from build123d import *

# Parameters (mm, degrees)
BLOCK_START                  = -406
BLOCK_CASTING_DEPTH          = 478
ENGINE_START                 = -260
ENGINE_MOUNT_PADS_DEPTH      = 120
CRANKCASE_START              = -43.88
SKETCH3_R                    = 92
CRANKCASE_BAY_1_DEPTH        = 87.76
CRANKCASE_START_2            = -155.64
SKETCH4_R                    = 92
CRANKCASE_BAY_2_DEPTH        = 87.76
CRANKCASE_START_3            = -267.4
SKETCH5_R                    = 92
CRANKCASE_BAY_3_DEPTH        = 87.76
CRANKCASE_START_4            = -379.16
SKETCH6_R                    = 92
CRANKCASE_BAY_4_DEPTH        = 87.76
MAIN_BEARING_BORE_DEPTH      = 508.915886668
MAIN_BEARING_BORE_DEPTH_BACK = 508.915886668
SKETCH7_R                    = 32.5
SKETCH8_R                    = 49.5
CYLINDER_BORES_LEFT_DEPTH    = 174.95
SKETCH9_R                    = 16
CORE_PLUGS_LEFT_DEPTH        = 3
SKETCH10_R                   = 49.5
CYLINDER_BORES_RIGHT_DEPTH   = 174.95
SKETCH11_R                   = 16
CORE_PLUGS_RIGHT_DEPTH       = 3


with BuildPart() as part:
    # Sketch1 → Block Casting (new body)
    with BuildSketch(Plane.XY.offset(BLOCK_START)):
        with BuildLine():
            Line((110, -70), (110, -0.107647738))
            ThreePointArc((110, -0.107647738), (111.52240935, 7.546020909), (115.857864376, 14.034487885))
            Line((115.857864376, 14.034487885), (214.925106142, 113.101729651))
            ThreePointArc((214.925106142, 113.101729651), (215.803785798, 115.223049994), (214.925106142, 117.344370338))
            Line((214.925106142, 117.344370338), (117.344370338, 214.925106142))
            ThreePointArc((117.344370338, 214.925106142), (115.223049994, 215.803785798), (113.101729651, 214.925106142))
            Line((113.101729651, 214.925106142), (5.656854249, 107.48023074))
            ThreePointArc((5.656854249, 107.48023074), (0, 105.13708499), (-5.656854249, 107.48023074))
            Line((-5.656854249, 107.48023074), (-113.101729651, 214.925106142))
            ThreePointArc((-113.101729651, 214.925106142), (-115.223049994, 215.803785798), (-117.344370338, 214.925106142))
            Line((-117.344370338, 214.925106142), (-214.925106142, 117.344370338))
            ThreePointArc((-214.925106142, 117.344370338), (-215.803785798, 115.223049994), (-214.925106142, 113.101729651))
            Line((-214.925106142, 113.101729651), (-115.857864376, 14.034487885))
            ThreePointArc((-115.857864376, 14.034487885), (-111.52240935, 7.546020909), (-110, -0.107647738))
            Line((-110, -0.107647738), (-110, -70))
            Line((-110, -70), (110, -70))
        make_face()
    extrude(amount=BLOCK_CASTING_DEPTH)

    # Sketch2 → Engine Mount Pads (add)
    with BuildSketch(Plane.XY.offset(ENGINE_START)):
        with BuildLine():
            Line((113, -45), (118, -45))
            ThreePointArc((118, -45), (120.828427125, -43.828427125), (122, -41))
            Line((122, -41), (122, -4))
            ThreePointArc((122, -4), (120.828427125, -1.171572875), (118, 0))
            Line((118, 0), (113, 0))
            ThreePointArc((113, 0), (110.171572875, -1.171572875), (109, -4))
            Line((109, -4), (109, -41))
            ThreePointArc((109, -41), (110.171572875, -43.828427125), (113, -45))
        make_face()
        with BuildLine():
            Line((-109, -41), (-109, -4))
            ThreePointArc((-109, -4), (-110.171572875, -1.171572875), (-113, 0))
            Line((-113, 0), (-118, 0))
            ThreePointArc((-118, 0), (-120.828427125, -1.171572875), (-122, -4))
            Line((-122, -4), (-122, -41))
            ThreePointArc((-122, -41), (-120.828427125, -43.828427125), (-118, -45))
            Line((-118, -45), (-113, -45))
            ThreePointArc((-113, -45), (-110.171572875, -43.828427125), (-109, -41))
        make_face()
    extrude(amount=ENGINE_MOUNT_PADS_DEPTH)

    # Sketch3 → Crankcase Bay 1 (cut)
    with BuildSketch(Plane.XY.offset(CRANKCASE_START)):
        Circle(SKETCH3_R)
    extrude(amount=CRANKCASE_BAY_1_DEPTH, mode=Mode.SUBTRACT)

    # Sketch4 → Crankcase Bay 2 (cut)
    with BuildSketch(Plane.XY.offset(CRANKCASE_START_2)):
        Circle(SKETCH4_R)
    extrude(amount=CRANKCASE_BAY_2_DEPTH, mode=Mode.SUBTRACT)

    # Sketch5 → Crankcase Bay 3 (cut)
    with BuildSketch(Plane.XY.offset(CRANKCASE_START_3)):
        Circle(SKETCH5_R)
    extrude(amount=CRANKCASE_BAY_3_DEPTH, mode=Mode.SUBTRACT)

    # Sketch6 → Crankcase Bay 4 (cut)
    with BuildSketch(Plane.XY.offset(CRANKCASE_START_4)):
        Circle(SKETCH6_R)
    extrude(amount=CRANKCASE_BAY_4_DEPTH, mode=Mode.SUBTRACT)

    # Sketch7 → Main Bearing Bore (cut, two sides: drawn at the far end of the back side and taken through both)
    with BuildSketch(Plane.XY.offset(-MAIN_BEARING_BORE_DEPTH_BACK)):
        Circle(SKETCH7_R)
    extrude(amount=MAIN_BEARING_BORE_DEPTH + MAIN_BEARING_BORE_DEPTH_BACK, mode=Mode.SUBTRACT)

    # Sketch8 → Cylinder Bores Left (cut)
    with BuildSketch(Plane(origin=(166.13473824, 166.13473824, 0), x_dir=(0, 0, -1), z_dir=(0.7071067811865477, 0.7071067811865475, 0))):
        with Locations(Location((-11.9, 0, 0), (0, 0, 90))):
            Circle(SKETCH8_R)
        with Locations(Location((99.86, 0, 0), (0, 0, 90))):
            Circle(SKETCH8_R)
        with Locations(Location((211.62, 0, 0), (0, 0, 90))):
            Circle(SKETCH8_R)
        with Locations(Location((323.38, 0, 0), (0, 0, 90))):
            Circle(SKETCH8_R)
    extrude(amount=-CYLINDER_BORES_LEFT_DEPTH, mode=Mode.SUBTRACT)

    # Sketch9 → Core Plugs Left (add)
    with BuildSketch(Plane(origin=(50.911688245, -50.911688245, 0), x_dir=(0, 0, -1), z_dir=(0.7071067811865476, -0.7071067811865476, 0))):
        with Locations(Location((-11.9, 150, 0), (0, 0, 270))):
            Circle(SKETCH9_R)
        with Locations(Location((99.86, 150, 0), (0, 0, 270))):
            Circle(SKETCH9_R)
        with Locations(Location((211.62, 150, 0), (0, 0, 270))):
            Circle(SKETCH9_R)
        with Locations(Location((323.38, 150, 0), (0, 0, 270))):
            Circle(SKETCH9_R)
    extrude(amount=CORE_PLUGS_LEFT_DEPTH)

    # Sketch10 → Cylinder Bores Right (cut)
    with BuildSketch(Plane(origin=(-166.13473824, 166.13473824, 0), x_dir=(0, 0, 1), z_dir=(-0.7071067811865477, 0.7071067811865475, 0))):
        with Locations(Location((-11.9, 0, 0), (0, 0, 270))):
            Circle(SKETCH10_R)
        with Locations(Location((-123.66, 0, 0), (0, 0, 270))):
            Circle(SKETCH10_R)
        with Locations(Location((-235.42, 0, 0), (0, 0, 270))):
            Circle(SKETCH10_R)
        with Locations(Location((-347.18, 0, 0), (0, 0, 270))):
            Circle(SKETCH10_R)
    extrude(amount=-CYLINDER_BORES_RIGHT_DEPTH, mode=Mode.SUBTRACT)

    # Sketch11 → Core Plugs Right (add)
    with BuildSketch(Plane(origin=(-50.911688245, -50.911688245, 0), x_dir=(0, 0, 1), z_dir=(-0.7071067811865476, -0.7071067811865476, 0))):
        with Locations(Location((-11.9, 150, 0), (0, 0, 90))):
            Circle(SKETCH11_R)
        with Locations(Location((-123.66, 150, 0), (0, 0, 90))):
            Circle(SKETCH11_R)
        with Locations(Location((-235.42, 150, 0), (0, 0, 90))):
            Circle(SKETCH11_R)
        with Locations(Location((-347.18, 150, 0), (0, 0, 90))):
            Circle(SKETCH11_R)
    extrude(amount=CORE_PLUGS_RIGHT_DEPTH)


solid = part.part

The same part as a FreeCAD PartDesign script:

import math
import FreeCAD as App
import Part
import Sketcher

doc = App.newDocument("Part")
body = doc.addObject("PartDesign::Body", "Body")

sketch1 = body.newObject("Sketcher::SketchObject", "Sketch")
sketch1.AttachmentSupport = (doc.getObject("XY_Plane"), [""])
sketch1.MapMode = "FlatFace"
sketch1.AttachmentOffset = App.Placement(App.Vector(0, 0, -406), App.Rotation())
sketch1.addGeometry(Part.LineSegment(App.Vector(110, -70, 0), App.Vector(110, -0.107648, 0)), False)
sketch1.addGeometry(Part.ArcOfCircle(Part.Circle(App.Vector(130, -0.107648, 0), App.Vector(0, 0, 1), 20), math.radians(135), math.radians(180)), False)
sketch1.addGeometry(Part.LineSegment(App.Vector(115.857864, 14.034488, 0), App.Vector(214.925106, 113.10173, 0)), False)
sketch1.addGeometry(Part.ArcOfCircle(Part.Circle(App.Vector(212.803786, 115.22305, 0), App.Vector(0, 0, 1), 3), math.radians(-45), math.radians(45)), False)
sketch1.addGeometry(Part.LineSegment(App.Vector(214.925106, 117.34437, 0), App.Vector(117.34437, 214.925106, 0)), False)
sketch1.addGeometry(Part.ArcOfCircle(Part.Circle(App.Vector(115.22305, 212.803786, 0), App.Vector(0, 0, 1), 3), math.radians(45), math.radians(135)), False)
sketch1.addGeometry(Part.LineSegment(App.Vector(113.10173, 214.925106, 0), App.Vector(5.656854, 107.480231, 0)), False)
sketch1.addGeometry(Part.ArcOfCircle(Part.Circle(App.Vector(0, 113.137085, 0), App.Vector(0, 0, 1), 8), math.radians(-135), math.radians(-45)), False)
sketch1.addGeometry(Part.LineSegment(App.Vector(-5.656854, 107.480231, 0), App.Vector(-113.10173, 214.925106, 0)), False)
sketch1.addGeometry(Part.ArcOfCircle(Part.Circle(App.Vector(-115.22305, 212.803786, 0), App.Vector(0, 0, 1), 3), math.radians(45), math.radians(135)), False)
sketch1.addGeometry(Part.LineSegment(App.Vector(-117.34437, 214.925106, 0), App.Vector(-214.925106, 117.34437, 0)), False)
sketch1.addGeometry(Part.ArcOfCircle(Part.Circle(App.Vector(-212.803786, 115.22305, 0), App.Vector(0, 0, 1), 3), math.radians(135), math.radians(225)), False)
sketch1.addGeometry(Part.LineSegment(App.Vector(-214.925106, 113.10173, 0), App.Vector(-115.857864, 14.034488, 0)), False)
sketch1.addGeometry(Part.ArcOfCircle(Part.Circle(App.Vector(-130, -0.107648, 0), App.Vector(0, 0, 1), 20), math.radians(0), math.radians(45)), False)
sketch1.addGeometry(Part.LineSegment(App.Vector(-110, -0.107648, 0), App.Vector(-110, -70, 0)), False)
sketch1.addGeometry(Part.LineSegment(App.Vector(-110, -70, 0), App.Vector(110, -70, 0)), False)
sketch1.addConstraint(Sketcher.Constraint("Tangent", 0, 2, 1, 2))
sketch1.addConstraint(Sketcher.Constraint("Tangent", 1, 1, 2, 1))
sketch1.addConstraint(Sketcher.Constraint("Tangent", 2, 2, 3, 1))
sketch1.addConstraint(Sketcher.Constraint("Tangent", 3, 2, 4, 1))
sketch1.addConstraint(Sketcher.Constraint("Tangent", 4, 2, 5, 1))
sketch1.addConstraint(Sketcher.Constraint("Tangent", 5, 2, 6, 1))
sketch1.addConstraint(Sketcher.Constraint("Tangent", 6, 2, 7, 2))
sketch1.addConstraint(Sketcher.Constraint("Tangent", 7, 1, 8, 1))
sketch1.addConstraint(Sketcher.Constraint("Tangent", 8, 2, 9, 1))
sketch1.addConstraint(Sketcher.Constraint("Tangent", 9, 2, 10, 1))
sketch1.addConstraint(Sketcher.Constraint("Tangent", 10, 2, 11, 1))
sketch1.addConstraint(Sketcher.Constraint("Tangent", 11, 2, 12, 1))
sketch1.addConstraint(Sketcher.Constraint("Tangent", 12, 2, 13, 2))
sketch1.addConstraint(Sketcher.Constraint("Tangent", 13, 1, 14, 1))
sketch1.addConstraint(Sketcher.Constraint("Coincident", 14, 2, 15, 1))
sketch1.addConstraint(Sketcher.Constraint("Coincident", 15, 2, 0, 1))
sketch1.addConstraint(Sketcher.Constraint("Vertical", 0))
sketch1.addConstraint(Sketcher.Constraint("Vertical", 14))
sketch1.addConstraint(Sketcher.Constraint("Horizontal", 15))
sketch1.addConstraint(Sketcher.Constraint("Equal", 3, 5))
sketch1.addConstraint(Sketcher.Constraint("Equal", 5, 9))
sketch1.addConstraint(Sketcher.Constraint("Equal", 9, 11))
sketch1.addConstraint(Sketcher.Constraint("Equal", 1, 13))
sketch1.addConstraint(Sketcher.Constraint("Symmetric", 5, 3, 9, 3, -2))
sketch1.addConstraint(Sketcher.Constraint("Symmetric", 3, 3, 11, 3, -2))
sketch1.addConstraint(Sketcher.Constraint("Symmetric", 1, 3, 13, 3, -2))
sketch1.addConstraint(Sketcher.Constraint("PointOnObject", 7, 3, -2))
sketch1.addConstraint(Sketcher.Constraint("Perpendicular", 2, 4))
sketch1.addConstraint(Sketcher.Constraint("Perpendicular", 4, 6))
sketch1.addConstraint(Sketcher.Constraint("Perpendicular", 6, 8))
sketch1.addConstraint(Sketcher.Constraint("Radius", 1, 20.0))
sketch1.addConstraint(Sketcher.Constraint("Radius", 3, 3.0))
sketch1.addConstraint(Sketcher.Constraint("Radius", 7, 8.0))
sketch1.addConstraint(Sketcher.Constraint("DistanceX", 15, 1, 15, 2, 220.0))
sketch1.addConstraint(Sketcher.Constraint("Distance", 4, 138.0))
sketch1.addConstraint(Sketcher.Constraint("DistanceY", 14, 2, -1, 1, 70.0))
sketch1.addConstraint(Sketcher.Constraint("Distance", 6, 151.95))
sketch1.addConstraint(Sketcher.Constraint("DistanceY", 0, 1, 0, 2, 69.892352))
pad1 = body.newObject("PartDesign::Pad", "Pad")
pad1.Profile = sketch1
pad1.Length = 478

sketch2 = body.newObject("Sketcher::SketchObject", "Sketch001")
sketch2.AttachmentSupport = (doc.getObject("XY_Plane"), [""])
sketch2.MapMode = "FlatFace"
sketch2.AttachmentOffset = App.Placement(App.Vector(0, 0, -260), App.Rotation())
sketch2.addGeometry(Part.LineSegment(App.Vector(113, -45, 0), App.Vector(118, -45, 0)), False)
sketch2.addGeometry(Part.ArcOfCircle(Part.Circle(App.Vector(118, -41, 0), App.Vector(0, 0, 1), 4), math.radians(-90), math.radians(0)), False)
sketch2.addGeometry(Part.LineSegment(App.Vector(122, -41, 0), App.Vector(122, -4, 0)), False)
sketch2.addGeometry(Part.ArcOfCircle(Part.Circle(App.Vector(118, -4, 0), App.Vector(0, 0, 1), 4), math.radians(0), math.radians(90)), False)
sketch2.addGeometry(Part.LineSegment(App.Vector(118, 0, 0), App.Vector(113, 0, 0)), False)
sketch2.addGeometry(Part.ArcOfCircle(Part.Circle(App.Vector(113, -4, 0), App.Vector(0, 0, 1), 4), math.radians(90), math.radians(180)), False)
sketch2.addGeometry(Part.LineSegment(App.Vector(109, -4, 0), App.Vector(109, -41, 0)), False)
sketch2.addGeometry(Part.ArcOfCircle(Part.Circle(App.Vector(113, -41, 0), App.Vector(0, 0, 1), 4), math.radians(180), math.radians(270)), False)
sketch2.addGeometry(Part.LineSegment(App.Vector(-109, -41, 0), App.Vector(-109, -4, 0)), False)
sketch2.addGeometry(Part.ArcOfCircle(Part.Circle(App.Vector(-113, -4, 0), App.Vector(0, 0, 1), 4), math.radians(0), math.radians(90)), False)
sketch2.addGeometry(Part.LineSegment(App.Vector(-113, 0, 0), App.Vector(-118, 0, 0)), False)
sketch2.addGeometry(Part.ArcOfCircle(Part.Circle(App.Vector(-118, -4, 0), App.Vector(0, 0, 1), 4), math.radians(90), math.radians(180)), False)
sketch2.addGeometry(Part.LineSegment(App.Vector(-122, -4, 0), App.Vector(-122, -41, 0)), False)
sketch2.addGeometry(Part.ArcOfCircle(Part.Circle(App.Vector(-118, -41, 0), App.Vector(0, 0, 1), 4), math.radians(180), math.radians(270)), False)
sketch2.addGeometry(Part.LineSegment(App.Vector(-118, -45, 0), App.Vector(-113, -45, 0)), False)
sketch2.addGeometry(Part.ArcOfCircle(Part.Circle(App.Vector(-113, -41, 0), App.Vector(0, 0, 1), 4), math.radians(-90), math.radians(0)), False)
sketch2.addConstraint(Sketcher.Constraint("Tangent", 0, 2, 1, 1))
sketch2.addConstraint(Sketcher.Constraint("Tangent", 1, 2, 2, 1))
sketch2.addConstraint(Sketcher.Constraint("Tangent", 2, 2, 3, 1))
sketch2.addConstraint(Sketcher.Constraint("Tangent", 3, 2, 4, 1))
sketch2.addConstraint(Sketcher.Constraint("Tangent", 4, 2, 5, 1))
sketch2.addConstraint(Sketcher.Constraint("Tangent", 5, 2, 6, 1))
sketch2.addConstraint(Sketcher.Constraint("Tangent", 6, 2, 7, 1))
sketch2.addConstraint(Sketcher.Constraint("Tangent", 7, 2, 0, 1))
sketch2.addConstraint(Sketcher.Constraint("Tangent", 8, 2, 9, 1))
sketch2.addConstraint(Sketcher.Constraint("Tangent", 9, 2, 10, 1))
sketch2.addConstraint(Sketcher.Constraint("Tangent", 10, 2, 11, 1))
sketch2.addConstraint(Sketcher.Constraint("Tangent", 11, 2, 12, 1))
sketch2.addConstraint(Sketcher.Constraint("Tangent", 12, 2, 13, 1))
sketch2.addConstraint(Sketcher.Constraint("Tangent", 13, 2, 14, 1))
sketch2.addConstraint(Sketcher.Constraint("Tangent", 14, 2, 15, 1))
sketch2.addConstraint(Sketcher.Constraint("Tangent", 15, 2, 8, 1))
sketch2.addConstraint(Sketcher.Constraint("Horizontal", 0))
sketch2.addConstraint(Sketcher.Constraint("Vertical", 2))
sketch2.addConstraint(Sketcher.Constraint("Horizontal", 4))
sketch2.addConstraint(Sketcher.Constraint("Vertical", 6))
sketch2.addConstraint(Sketcher.Constraint("Vertical", 8))
sketch2.addConstraint(Sketcher.Constraint("Horizontal", 10))
sketch2.addConstraint(Sketcher.Constraint("Vertical", 12))
sketch2.addConstraint(Sketcher.Constraint("Horizontal", 14))
sketch2.addConstraint(Sketcher.Constraint("Equal", 1, 3))
sketch2.addConstraint(Sketcher.Constraint("Equal", 3, 5))
sketch2.addConstraint(Sketcher.Constraint("Equal", 5, 7))
sketch2.addConstraint(Sketcher.Constraint("Equal", 7, 9))
sketch2.addConstraint(Sketcher.Constraint("Equal", 9, 11))
sketch2.addConstraint(Sketcher.Constraint("Equal", 11, 13))
sketch2.addConstraint(Sketcher.Constraint("Equal", 13, 15))
sketch2.addConstraint(Sketcher.Constraint("Symmetric", 4, 2, 9, 2, -1, 1))
sketch2.addConstraint(Sketcher.Constraint("Symmetric", 3, 3, 11, 3, -2))
sketch2.addConstraint(Sketcher.Constraint("Horizontal", 7, 3, 13, 3))
sketch2.addConstraint(Sketcher.Constraint("Radius", 1, 4.0))
sketch2.addConstraint(Sketcher.Constraint("DistanceX", 0, 1, 0, 2, 5.0))
sketch2.addConstraint(Sketcher.Constraint("DistanceY", 2, 1, 2, 2, 37.0))
sketch2.addConstraint(Sketcher.Constraint("DistanceX", -1, 1, 1, 3, 118.0))
pad2 = body.newObject("PartDesign::Pad", "Pad001")
pad2.Profile = sketch2
pad2.Length = 120

sketch3 = body.newObject("Sketcher::SketchObject", "Sketch002")
sketch3.AttachmentSupport = (doc.getObject("XY_Plane"), [""])
sketch3.MapMode = "FlatFace"
sketch3.AttachmentOffset = App.Placement(App.Vector(0, 0, -43.88), App.Rotation())
sketch3.addGeometry(Part.Circle(App.Vector(0, 0, 0), App.Vector(0, 0, 1), 92), False)
sketch3.addConstraint(Sketcher.Constraint("Coincident", 0, 3, -1, 1))
sketch3.addConstraint(Sketcher.Constraint("Diameter", 0, 184.0))
pocket1 = body.newObject("PartDesign::Pocket", "Pocket")
pocket1.Profile = sketch3
pocket1.Length = 87.76
pocket1.Reversed = True

sketch4 = body.newObject("Sketcher::SketchObject", "Sketch003")
sketch4.AttachmentSupport = (doc.getObject("XY_Plane"), [""])
sketch4.MapMode = "FlatFace"
sketch4.AttachmentOffset = App.Placement(App.Vector(0, 0, -155.64), App.Rotation())
sketch4.addGeometry(Part.Circle(App.Vector(0, 0, 0), App.Vector(0, 0, 1), 92), False)
sketch4.addConstraint(Sketcher.Constraint("Coincident", 0, 3, -1, 1))
sketch4.addConstraint(Sketcher.Constraint("Diameter", 0, 184.0))
pocket2 = body.newObject("PartDesign::Pocket", "Pocket001")
pocket2.Profile = sketch4
pocket2.Length = 87.76
pocket2.Reversed = True

sketch5 = body.newObject("Sketcher::SketchObject", "Sketch004")
sketch5.AttachmentSupport = (doc.getObject("XY_Plane"), [""])
sketch5.MapMode = "FlatFace"
sketch5.AttachmentOffset = App.Placement(App.Vector(0, 0, -267.4), App.Rotation())
sketch5.addGeometry(Part.Circle(App.Vector(0, 0, 0), App.Vector(0, 0, 1), 92), False)
sketch5.addConstraint(Sketcher.Constraint("Coincident", 0, 3, -1, 1))
sketch5.addConstraint(Sketcher.Constraint("Diameter", 0, 184.0))
pocket3 = body.newObject("PartDesign::Pocket", "Pocket002")
pocket3.Profile = sketch5
pocket3.Length = 87.76
pocket3.Reversed = True

sketch6 = body.newObject("Sketcher::SketchObject", "Sketch005")
sketch6.AttachmentSupport = (doc.getObject("XY_Plane"), [""])
sketch6.MapMode = "FlatFace"
sketch6.AttachmentOffset = App.Placement(App.Vector(0, 0, -379.16), App.Rotation())
sketch6.addGeometry(Part.Circle(App.Vector(0, 0, 0), App.Vector(0, 0, 1), 92), False)
sketch6.addConstraint(Sketcher.Constraint("Coincident", 0, 3, -1, 1))
sketch6.addConstraint(Sketcher.Constraint("Diameter", 0, 184.0))
pocket4 = body.newObject("PartDesign::Pocket", "Pocket003")
pocket4.Profile = sketch6
pocket4.Length = 87.76
pocket4.Reversed = True

sketch7 = body.newObject("Sketcher::SketchObject", "Sketch006")
sketch7.AttachmentSupport = (doc.getObject("XY_Plane"), [""])
sketch7.MapMode = "FlatFace"
sketch7.addGeometry(Part.Circle(App.Vector(0, 0, 0), App.Vector(0, 0, 1), 32.5), False)
sketch7.addConstraint(Sketcher.Constraint("Coincident", 0, 3, -1, 1))
sketch7.addConstraint(Sketcher.Constraint("Diameter", 0, 65.0))
pocket5 = body.newObject("PartDesign::Pocket", "Pocket004")
pocket5.Profile = sketch7
pocket5.Type = "ThroughAll"
pocket5.Midplane = True

sketch8 = body.newObject("Sketcher::SketchObject", "Sketch007")
sketch8.Placement = App.Placement(App.Vector(166.134738, 166.134738, 0), App.Rotation(App.Vector(0, 0, -1), App.Vector(-0.707106781, 0.707106781, 0), App.Vector(0.707106781, 0.707106781, 0), "ZXY"))
sketch8.addGeometry(Part.Circle(App.Vector(-11.9, 0, 0), App.Vector(0, 0, 1), 49.5), False)
sketch8.addGeometry(Part.Circle(App.Vector(99.86, 0, 0), App.Vector(0, 0, 1), 49.5), False)
sketch8.addGeometry(Part.Circle(App.Vector(211.62, 0, 0), App.Vector(0, 0, 1), 49.5), False)
sketch8.addGeometry(Part.Circle(App.Vector(323.38, 0, 0), App.Vector(0, 0, 1), 49.5), False)
sketch8.addConstraint(Sketcher.Constraint("Equal", 0, 1))
sketch8.addConstraint(Sketcher.Constraint("Equal", 1, 2))
sketch8.addConstraint(Sketcher.Constraint("Equal", 2, 3))
sketch8.addConstraint(Sketcher.Constraint("PointOnObject", 0, 3, -1))
sketch8.addConstraint(Sketcher.Constraint("PointOnObject", 1, 3, -1))
sketch8.addConstraint(Sketcher.Constraint("PointOnObject", 2, 3, -1))
sketch8.addConstraint(Sketcher.Constraint("PointOnObject", 3, 3, -1))
sketch8.addConstraint(Sketcher.Constraint("Diameter", 0, 99.0))
sketch8.addConstraint(Sketcher.Constraint("DistanceX", 0, 3, -1, 1, 11.9))
sketch8.addConstraint(Sketcher.Constraint("DistanceX", -1, 1, 1, 3, 99.86))
sketch8.addConstraint(Sketcher.Constraint("DistanceX", -1, 1, 2, 3, 211.62))
sketch8.addConstraint(Sketcher.Constraint("DistanceX", -1, 1, 3, 3, 323.38))
pocket6 = body.newObject("PartDesign::Pocket", "Pocket005")
pocket6.Profile = sketch8
pocket6.Length = 174.95

sketch9 = body.newObject("Sketcher::SketchObject", "Sketch008")
sketch9.Placement = App.Placement(App.Vector(50.911688, -50.911688, 0), App.Rotation(App.Vector(0, 0, -1), App.Vector(0.707106781, 0.707106781, 0), App.Vector(0.707106781, -0.707106781, 0), "ZXY"))
sketch9.addGeometry(Part.Circle(App.Vector(-11.9, 150, 0), App.Vector(0, 0, 1), 16), False)
sketch9.addGeometry(Part.Circle(App.Vector(99.86, 150, 0), App.Vector(0, 0, 1), 16), False)
sketch9.addGeometry(Part.Circle(App.Vector(211.62, 150, 0), App.Vector(0, 0, 1), 16), False)
sketch9.addGeometry(Part.Circle(App.Vector(323.38, 150, 0), App.Vector(0, 0, 1), 16), False)
sketch9.addConstraint(Sketcher.Constraint("Equal", 0, 1))
sketch9.addConstraint(Sketcher.Constraint("Equal", 1, 2))
sketch9.addConstraint(Sketcher.Constraint("Equal", 2, 3))
sketch9.addConstraint(Sketcher.Constraint("Horizontal", 0, 3, 1, 3))
sketch9.addConstraint(Sketcher.Constraint("Horizontal", 1, 3, 2, 3))
sketch9.addConstraint(Sketcher.Constraint("Horizontal", 2, 3, 3, 3))
sketch9.addConstraint(Sketcher.Constraint("Diameter", 0, 32.0))
sketch9.addConstraint(Sketcher.Constraint("DistanceY", -1, 1, 0, 3, 150.0))
sketch9.addConstraint(Sketcher.Constraint("DistanceX", 0, 3, -1, 1, 11.9))
sketch9.addConstraint(Sketcher.Constraint("DistanceX", -1, 1, 1, 3, 99.86))
sketch9.addConstraint(Sketcher.Constraint("DistanceX", -1, 1, 2, 3, 211.62))
sketch9.addConstraint(Sketcher.Constraint("DistanceX", -1, 1, 3, 3, 323.38))
pad3 = body.newObject("PartDesign::Pad", "Pad002")
pad3.Profile = sketch9
pad3.Length = 3

sketch10 = body.newObject("Sketcher::SketchObject", "Sketch009")
sketch10.Placement = App.Placement(App.Vector(-166.134738, 166.134738, 0), App.Rotation(App.Vector(0, 0, 1), App.Vector(0.707106781, 0.707106781, 0), App.Vector(-0.707106781, 0.707106781, 0), "ZXY"))
sketch10.addGeometry(Part.Circle(App.Vector(-11.9, 0, 0), App.Vector(0, 0, 1), 49.5), False)
sketch10.addGeometry(Part.Circle(App.Vector(-123.66, 0, 0), App.Vector(0, 0, 1), 49.5), False)
sketch10.addGeometry(Part.Circle(App.Vector(-235.42, 0, 0), App.Vector(0, 0, 1), 49.5), False)
sketch10.addGeometry(Part.Circle(App.Vector(-347.18, 0, 0), App.Vector(0, 0, 1), 49.5), False)
sketch10.addConstraint(Sketcher.Constraint("Equal", 0, 1))
sketch10.addConstraint(Sketcher.Constraint("Equal", 1, 2))
sketch10.addConstraint(Sketcher.Constraint("Equal", 2, 3))
sketch10.addConstraint(Sketcher.Constraint("PointOnObject", 0, 3, -1))
sketch10.addConstraint(Sketcher.Constraint("PointOnObject", 1, 3, -1))
sketch10.addConstraint(Sketcher.Constraint("PointOnObject", 2, 3, -1))
sketch10.addConstraint(Sketcher.Constraint("PointOnObject", 3, 3, -1))
sketch10.addConstraint(Sketcher.Constraint("Diameter", 0, 99.0))
sketch10.addConstraint(Sketcher.Constraint("DistanceX", 0, 3, -1, 1, 11.9))
sketch10.addConstraint(Sketcher.Constraint("DistanceX", 1, 3, -1, 1, 123.66))
sketch10.addConstraint(Sketcher.Constraint("DistanceX", 2, 3, -1, 1, 235.42))
sketch10.addConstraint(Sketcher.Constraint("DistanceX", 3, 3, -1, 1, 347.18))
pocket7 = body.newObject("PartDesign::Pocket", "Pocket006")
pocket7.Profile = sketch10
pocket7.Length = 174.95

sketch11 = body.newObject("Sketcher::SketchObject", "Sketch010")
sketch11.Placement = App.Placement(App.Vector(-50.911688, -50.911688, 0), App.Rotation(App.Vector(0, 0, 1), App.Vector(-0.707106781, 0.707106781, 0), App.Vector(-0.707106781, -0.707106781, 0), "ZXY"))
sketch11.addGeometry(Part.Circle(App.Vector(-11.9, 150, 0), App.Vector(0, 0, 1), 16), False)
sketch11.addGeometry(Part.Circle(App.Vector(-123.66, 150, 0), App.Vector(0, 0, 1), 16), False)
sketch11.addGeometry(Part.Circle(App.Vector(-235.42, 150, 0), App.Vector(0, 0, 1), 16), False)
sketch11.addGeometry(Part.Circle(App.Vector(-347.18, 150, 0), App.Vector(0, 0, 1), 16), False)
sketch11.addConstraint(Sketcher.Constraint("Equal", 0, 1))
sketch11.addConstraint(Sketcher.Constraint("Equal", 1, 2))
sketch11.addConstraint(Sketcher.Constraint("Equal", 2, 3))
sketch11.addConstraint(Sketcher.Constraint("Horizontal", 0, 3, 1, 3))
sketch11.addConstraint(Sketcher.Constraint("Horizontal", 1, 3, 2, 3))
sketch11.addConstraint(Sketcher.Constraint("Horizontal", 2, 3, 3, 3))
sketch11.addConstraint(Sketcher.Constraint("Diameter", 0, 32.0))
sketch11.addConstraint(Sketcher.Constraint("DistanceY", -1, 1, 0, 3, 150.0))
sketch11.addConstraint(Sketcher.Constraint("DistanceX", 0, 3, -1, 1, 11.9))
sketch11.addConstraint(Sketcher.Constraint("DistanceX", 1, 3, -1, 1, 123.66))
sketch11.addConstraint(Sketcher.Constraint("DistanceX", 2, 3, -1, 1, 235.42))
sketch11.addConstraint(Sketcher.Constraint("DistanceX", 3, 3, -1, 1, 347.18))
pad4 = body.newObject("PartDesign::Pad", "Pad003")
pad4.Profile = sketch11
pad4.Length = 3

doc.recompute()
